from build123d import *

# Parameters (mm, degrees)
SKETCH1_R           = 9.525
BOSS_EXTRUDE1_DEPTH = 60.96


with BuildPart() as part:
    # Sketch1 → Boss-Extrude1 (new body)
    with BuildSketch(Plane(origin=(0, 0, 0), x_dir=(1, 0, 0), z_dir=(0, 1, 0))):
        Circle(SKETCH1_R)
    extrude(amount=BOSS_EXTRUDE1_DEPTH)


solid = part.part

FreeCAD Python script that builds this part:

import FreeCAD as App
import Part
import Sketcher
Q = App.Units.Quantity

doc = App.newDocument("Part")
body = doc.addObject("PartDesign::Body", "Body")

sketch1 = body.newObject("Sketcher::SketchObject", "Sketch")
sketch1.AttachmentSupport = (doc.getObject("XZ_Plane"), [""])
sketch1.MapMode = "FlatFace"
sketch1.addGeometry(Part.Circle(App.Vector(0, 0, 0), App.Vector(0, 0, 1), 10), False)
sketch1.addConstraint([
    Sketcher.Constraint("Coincident", 0, 3, -1, 1),
    Sketcher.Constraint("Diameter", 0, Q("0.75 in")),
])
pad1 = body.newObject("PartDesign::Pad", "Pad")
pad1.Profile = sketch1
pad1.Length = Q("2.4 in")
pad1.Reversed = True

doc.recompute()
